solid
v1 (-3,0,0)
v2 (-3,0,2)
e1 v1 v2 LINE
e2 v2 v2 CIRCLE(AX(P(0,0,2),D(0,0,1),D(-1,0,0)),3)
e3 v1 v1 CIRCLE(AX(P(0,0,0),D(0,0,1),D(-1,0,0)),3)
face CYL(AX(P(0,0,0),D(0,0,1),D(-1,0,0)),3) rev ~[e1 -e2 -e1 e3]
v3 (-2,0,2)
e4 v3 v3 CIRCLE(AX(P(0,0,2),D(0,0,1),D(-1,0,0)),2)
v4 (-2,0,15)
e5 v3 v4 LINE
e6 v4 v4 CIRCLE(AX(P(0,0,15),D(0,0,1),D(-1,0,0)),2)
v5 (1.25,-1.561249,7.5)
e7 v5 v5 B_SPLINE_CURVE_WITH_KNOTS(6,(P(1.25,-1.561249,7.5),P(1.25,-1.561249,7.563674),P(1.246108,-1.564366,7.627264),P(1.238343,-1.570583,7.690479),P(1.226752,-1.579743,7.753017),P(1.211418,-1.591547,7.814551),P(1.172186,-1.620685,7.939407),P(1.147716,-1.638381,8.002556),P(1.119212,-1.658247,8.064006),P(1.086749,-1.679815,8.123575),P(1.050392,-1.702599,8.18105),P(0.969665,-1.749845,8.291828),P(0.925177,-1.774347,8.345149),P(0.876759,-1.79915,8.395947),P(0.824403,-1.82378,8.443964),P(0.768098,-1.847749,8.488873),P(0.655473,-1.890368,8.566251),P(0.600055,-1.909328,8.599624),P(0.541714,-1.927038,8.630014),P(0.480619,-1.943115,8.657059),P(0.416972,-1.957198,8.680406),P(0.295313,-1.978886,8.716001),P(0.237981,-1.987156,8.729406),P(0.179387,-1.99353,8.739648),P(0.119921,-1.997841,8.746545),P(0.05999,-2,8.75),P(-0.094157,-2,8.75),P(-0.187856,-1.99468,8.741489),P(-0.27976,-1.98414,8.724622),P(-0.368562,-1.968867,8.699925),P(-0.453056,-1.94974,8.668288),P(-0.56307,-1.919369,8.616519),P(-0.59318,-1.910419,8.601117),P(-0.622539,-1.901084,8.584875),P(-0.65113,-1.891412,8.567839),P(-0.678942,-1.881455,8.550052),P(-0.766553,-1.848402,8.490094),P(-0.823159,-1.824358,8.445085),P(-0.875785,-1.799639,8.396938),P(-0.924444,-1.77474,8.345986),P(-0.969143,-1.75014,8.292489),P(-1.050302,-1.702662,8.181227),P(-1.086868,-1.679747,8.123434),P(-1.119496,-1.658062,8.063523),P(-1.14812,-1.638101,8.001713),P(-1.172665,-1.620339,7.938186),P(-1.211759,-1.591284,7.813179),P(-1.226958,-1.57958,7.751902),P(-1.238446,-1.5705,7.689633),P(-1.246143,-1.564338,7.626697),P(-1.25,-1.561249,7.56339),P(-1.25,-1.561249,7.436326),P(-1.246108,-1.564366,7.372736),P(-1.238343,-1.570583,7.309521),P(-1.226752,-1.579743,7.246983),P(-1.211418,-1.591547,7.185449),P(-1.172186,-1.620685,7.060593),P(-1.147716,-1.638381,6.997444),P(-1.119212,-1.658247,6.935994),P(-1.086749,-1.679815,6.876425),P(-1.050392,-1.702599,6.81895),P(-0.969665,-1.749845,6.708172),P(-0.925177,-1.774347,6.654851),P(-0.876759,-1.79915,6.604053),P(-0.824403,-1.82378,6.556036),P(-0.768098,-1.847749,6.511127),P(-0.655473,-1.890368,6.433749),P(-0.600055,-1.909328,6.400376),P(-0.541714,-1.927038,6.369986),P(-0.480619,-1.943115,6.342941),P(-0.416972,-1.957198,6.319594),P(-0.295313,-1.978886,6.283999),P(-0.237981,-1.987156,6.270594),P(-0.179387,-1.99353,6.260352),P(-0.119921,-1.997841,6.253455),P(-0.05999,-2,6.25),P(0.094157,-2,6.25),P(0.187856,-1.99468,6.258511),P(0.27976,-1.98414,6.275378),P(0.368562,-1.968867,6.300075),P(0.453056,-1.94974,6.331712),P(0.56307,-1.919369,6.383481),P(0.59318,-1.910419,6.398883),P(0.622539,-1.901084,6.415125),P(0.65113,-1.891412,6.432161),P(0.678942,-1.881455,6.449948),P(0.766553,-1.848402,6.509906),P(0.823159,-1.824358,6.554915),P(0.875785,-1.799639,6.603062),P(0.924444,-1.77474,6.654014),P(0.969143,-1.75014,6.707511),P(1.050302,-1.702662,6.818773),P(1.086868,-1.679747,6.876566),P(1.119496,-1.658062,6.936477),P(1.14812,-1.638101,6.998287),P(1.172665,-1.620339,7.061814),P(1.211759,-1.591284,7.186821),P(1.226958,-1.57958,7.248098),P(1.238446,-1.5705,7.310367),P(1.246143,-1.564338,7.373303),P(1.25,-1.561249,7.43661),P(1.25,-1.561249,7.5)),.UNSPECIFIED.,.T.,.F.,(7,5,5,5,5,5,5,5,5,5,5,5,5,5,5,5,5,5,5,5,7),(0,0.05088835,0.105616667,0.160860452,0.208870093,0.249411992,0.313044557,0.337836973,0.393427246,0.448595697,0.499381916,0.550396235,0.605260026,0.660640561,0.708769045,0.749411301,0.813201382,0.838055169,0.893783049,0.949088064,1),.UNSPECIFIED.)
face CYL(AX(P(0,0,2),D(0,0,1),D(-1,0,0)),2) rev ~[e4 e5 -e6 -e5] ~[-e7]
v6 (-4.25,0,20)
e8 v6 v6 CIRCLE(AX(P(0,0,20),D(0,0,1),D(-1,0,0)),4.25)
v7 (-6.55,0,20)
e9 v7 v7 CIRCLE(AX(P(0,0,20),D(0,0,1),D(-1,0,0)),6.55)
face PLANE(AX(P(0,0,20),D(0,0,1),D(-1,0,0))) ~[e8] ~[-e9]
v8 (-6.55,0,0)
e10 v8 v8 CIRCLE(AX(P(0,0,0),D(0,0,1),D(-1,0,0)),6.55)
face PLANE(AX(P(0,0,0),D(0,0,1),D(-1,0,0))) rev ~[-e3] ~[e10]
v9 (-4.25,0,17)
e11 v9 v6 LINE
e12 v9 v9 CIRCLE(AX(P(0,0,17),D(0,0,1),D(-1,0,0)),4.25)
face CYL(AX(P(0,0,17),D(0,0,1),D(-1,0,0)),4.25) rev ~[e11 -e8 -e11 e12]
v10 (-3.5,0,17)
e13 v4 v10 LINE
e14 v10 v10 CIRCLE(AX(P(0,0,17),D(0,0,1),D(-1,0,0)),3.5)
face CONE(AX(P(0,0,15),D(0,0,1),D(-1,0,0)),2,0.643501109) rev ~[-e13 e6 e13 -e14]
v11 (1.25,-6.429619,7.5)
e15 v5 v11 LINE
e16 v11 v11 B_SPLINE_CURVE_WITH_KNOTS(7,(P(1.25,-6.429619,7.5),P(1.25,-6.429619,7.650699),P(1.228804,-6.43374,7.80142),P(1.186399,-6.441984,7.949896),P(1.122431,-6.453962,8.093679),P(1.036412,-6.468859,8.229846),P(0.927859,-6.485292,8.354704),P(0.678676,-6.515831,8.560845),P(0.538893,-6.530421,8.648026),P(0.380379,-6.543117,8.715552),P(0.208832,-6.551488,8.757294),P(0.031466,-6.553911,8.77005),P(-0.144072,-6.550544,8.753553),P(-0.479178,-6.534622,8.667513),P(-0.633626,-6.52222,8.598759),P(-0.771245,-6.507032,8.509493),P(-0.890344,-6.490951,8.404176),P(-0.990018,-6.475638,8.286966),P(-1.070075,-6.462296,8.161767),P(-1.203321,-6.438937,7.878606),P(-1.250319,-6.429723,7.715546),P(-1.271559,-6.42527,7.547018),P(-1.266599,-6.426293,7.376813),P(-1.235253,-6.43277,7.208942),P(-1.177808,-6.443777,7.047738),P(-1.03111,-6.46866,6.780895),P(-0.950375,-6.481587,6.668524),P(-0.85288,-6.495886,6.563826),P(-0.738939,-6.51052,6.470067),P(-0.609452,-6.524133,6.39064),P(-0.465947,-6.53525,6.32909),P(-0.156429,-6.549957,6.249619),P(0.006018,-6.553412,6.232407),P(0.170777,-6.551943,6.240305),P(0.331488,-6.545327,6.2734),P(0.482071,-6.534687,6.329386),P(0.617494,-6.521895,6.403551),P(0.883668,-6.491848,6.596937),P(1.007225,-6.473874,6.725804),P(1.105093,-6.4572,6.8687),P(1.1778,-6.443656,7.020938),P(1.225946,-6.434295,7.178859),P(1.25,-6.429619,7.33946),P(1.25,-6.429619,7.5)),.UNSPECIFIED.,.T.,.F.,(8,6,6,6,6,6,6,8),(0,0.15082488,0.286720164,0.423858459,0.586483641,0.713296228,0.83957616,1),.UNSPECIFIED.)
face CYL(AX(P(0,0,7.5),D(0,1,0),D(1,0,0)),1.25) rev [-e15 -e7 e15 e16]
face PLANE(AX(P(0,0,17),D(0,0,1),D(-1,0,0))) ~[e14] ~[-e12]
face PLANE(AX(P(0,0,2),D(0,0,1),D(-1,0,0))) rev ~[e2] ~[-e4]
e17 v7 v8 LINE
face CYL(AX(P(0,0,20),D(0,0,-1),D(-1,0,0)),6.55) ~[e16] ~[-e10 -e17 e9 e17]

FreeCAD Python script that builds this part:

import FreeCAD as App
import Part
import Sketcher
from FreeCAD import Vector
Q = App.Units.Quantity

doc = App.newDocument("Part")
body = doc.addObject("PartDesign::Body", "Body")

# Sketch on XZ plane
sketch1 = body.newObject("Sketcher::SketchObject", "Sketch")
sketch1.AttachmentSupport = (doc.getObject("XZ_Plane"), [""])
sketch1.MapMode = "FlatFace"
sketch1.addGeometry(Part.LineSegment(Vector(-2, 15, 0), Vector(-3.5, 17, 0)), False)
sketch1.addGeometry(Part.LineSegment(Vector(-3.5, 17, 0), Vector(-4.25, 17, 0)), False)
sketch1.addGeometry(Part.LineSegment(Vector(-4.25, 17, 0), Vector(-4.25, 20, 0)), False)
sketch1.addGeometry(Part.LineSegment(Vector(-4.25, 20, 0), Vector(-6.55, 20, 0)), False)
sketch1.addGeometry(Part.LineSegment(Vector(-6.55, 20, 0), Vector(-6.55, 0, 0)), False)
sketch1.addGeometry(Part.LineSegment(Vector(-6.55, 0, 0), Vector(-3, 0, 0)), False)
sketch1.addGeometry(Part.LineSegment(Vector(-3, 0, 0), Vector(-3, 2, 0)), False)
sketch1.addGeometry(Part.LineSegment(Vector(-3, 2, 0), Vector(-2, 2, 0)), False)
sketch1.addGeometry(Part.LineSegment(Vector(-2, 2, 0), Vector(-2, 15, 0)), False)
sketch1.addConstraint(Sketcher.Constraint("Coincident", 0, 2, 1, 1))
sketch1.addConstraint(Sketcher.Constraint("Coincident", 1, 2, 2, 1))
sketch1.addConstraint(Sketcher.Constraint("Coincident", 2, 2, 3, 1))
sketch1.addConstraint(Sketcher.Constraint("Coincident", 3, 2, 4, 1))
sketch1.addConstraint(Sketcher.Constraint("Coincident", 4, 2, 5, 1))
sketch1.addConstraint(Sketcher.Constraint("Coincident", 5, 2, 6, 1))
sketch1.addConstraint(Sketcher.Constraint("Coincident", 6, 2, 7, 1))
sketch1.addConstraint(Sketcher.Constraint("Coincident", 7, 2, 8, 1))
sketch1.addConstraint(Sketcher.Constraint("Coincident", 8, 2, 0, 1))
sketch1.addConstraint(Sketcher.Constraint("Horizontal", 1))
sketch1.addConstraint(Sketcher.Constraint("Vertical", 2))
sketch1.addConstraint(Sketcher.Constraint("Horizontal", 3))
sketch1.addConstraint(Sketcher.Constraint("Vertical", 4))
sketch1.addConstraint(Sketcher.Constraint("Horizontal", 5))
sketch1.addConstraint(Sketcher.Constraint("Vertical", 6))
sketch1.addConstraint(Sketcher.Constraint("Horizontal", 7))
sketch1.addConstraint(Sketcher.Constraint("Vertical", 8))
sketch1.addConstraint(Sketcher.Constraint("PointOnObject", 4, 2, -1))
sketch1.addConstraint(Sketcher.Constraint("DistanceX", 7, 1, 7, 2, Q("1 mm")))
sketch1.addConstraint(Sketcher.Constraint("DistanceY", 2, 1, 2, 2, Q("3 mm")))
sketch1.addConstraint(Sketcher.Constraint("DistanceY", 4, 2, 4, 1, Q("20 mm")))
sketch1.addConstraint(Sketcher.Constraint("DistanceY", 6, 1, 6, 2, Q("2 mm")))
sketch1.addConstraint(Sketcher.Constraint("DistanceY", 8, 1, 8, 2, Q("13 mm")))
sketch1.addConstraint(Sketcher.Constraint("DistanceX", 3, 2, 3, 1, Q("2.3 mm")))
sketch1.addConstraint(Sketcher.Constraint("DistanceX", 5, 2, -1, 1, Q("3 mm")))
sketch1.addConstraint(Sketcher.Constraint("Distance", 0, Q("2.5 mm")))
sketch1.addConstraint(Sketcher.Constraint("DistanceX", 1, 2, 1, 1, Q("0.75 mm")))
revolution = body.newObject("PartDesign::Revolution", "Revolution")
revolution.Profile = sketch1
revolution.ReferenceAxis = (sketch1, ["V_Axis"])
revolution.Angle = 360

# Sketch on XZ plane
sketch2 = body.newObject("Sketcher::SketchObject", "Sketch001")
sketch2.AttachmentSupport = (doc.getObject("XZ_Plane"), [""])
sketch2.MapMode = "FlatFace"
sketch2.addGeometry(Part.Circle(Vector(0, 7.5, 0), Vector(0, 0, 1), 1.25), False)
sketch2.addConstraint(Sketcher.Constraint("PointOnObject", 0, 3, -2))
sketch2.addConstraint(Sketcher.Constraint("Diameter", 0, Q("2.5 mm")))
sketch2.addConstraint(Sketcher.Constraint("DistanceY", -1, 1, 0, 3, Q("7.5 mm")))
pocket1 = body.newObject("PartDesign::Pocket", "Pocket")
pocket1.Profile = sketch2
pocket1.Length = 12.6
pocket1.Reversed = True

doc.recompute()
